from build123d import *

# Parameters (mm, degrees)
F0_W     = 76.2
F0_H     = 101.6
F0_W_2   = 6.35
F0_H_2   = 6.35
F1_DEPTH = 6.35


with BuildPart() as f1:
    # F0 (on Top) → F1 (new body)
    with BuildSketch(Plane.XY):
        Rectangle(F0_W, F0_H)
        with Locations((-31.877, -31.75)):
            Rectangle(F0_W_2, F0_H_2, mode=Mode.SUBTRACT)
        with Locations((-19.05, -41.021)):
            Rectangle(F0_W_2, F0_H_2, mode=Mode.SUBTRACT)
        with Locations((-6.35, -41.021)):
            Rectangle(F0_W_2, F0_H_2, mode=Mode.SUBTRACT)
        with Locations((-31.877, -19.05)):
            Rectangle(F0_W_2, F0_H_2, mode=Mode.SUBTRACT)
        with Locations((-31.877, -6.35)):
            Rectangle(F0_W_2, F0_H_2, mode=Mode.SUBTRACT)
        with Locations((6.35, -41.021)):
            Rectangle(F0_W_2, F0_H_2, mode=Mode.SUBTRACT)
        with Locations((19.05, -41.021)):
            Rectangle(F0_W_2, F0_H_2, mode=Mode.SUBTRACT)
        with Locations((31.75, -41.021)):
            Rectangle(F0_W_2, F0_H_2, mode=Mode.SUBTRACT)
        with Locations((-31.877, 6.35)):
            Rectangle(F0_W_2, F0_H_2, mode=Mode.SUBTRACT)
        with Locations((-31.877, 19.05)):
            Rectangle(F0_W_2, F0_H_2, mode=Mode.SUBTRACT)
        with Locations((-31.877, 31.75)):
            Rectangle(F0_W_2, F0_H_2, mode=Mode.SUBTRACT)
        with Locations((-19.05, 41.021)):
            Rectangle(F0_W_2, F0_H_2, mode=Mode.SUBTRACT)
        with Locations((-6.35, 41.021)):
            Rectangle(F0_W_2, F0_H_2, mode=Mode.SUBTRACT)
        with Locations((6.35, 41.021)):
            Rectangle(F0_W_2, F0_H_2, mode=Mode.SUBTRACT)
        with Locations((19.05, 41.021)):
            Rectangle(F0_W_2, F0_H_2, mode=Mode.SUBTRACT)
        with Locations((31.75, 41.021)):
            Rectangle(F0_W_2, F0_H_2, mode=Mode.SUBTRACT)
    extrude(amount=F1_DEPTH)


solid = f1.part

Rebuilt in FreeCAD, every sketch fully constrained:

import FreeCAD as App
import Part
import Sketcher

V = App.Vector
Q = App.Units.Quantity

doc = App.newDocument("Part")
params = doc.addObject("Spreadsheet::Sheet", "Params")
for row, (alias, value) in enumerate([
    ("sketch1_width", "3 in"),
    ("sketch1_height", "4 in"),
    ("sketch1_width2", "0.25 in"),
    ("pad1_length", "0.25 in"),
], start=1):
    params.set(f"A{row}", alias)
    params.set(f"B{row}", "=" + value)
    params.setAlias(f"B{row}", alias)

body = doc.addObject("PartDesign::Body", "Body")

# Sketch on XY plane
sketch1 = body.newObject("Sketcher::SketchObject", "Sketch")
sketch1.AttachmentSupport = (doc.getObject("XY_Plane"), [""])
sketch1.MapMode = "FlatFace"
sketch1.addGeometry([
    Part.LineSegment(V(-38.1, 50.8, 0), V(-38.1, -50.8, 0)),  # 0
    Part.LineSegment(V(-38.1, -50.8, 0), V(38.1, -50.8, 0)),  # 1
    Part.LineSegment(V(38.1, -50.8, 0), V(38.1, 50.8, 0)),  # 2
    Part.LineSegment(V(38.1, 50.8, 0), V(-38.1, 50.8, 0)),  # 3
    Part.LineSegment(V(-15.875, -44.196, 0), V(-22.225, -44.196, 0)),  # 4
    Part.LineSegment(V(-22.225, -44.196, 0), V(-22.225, -37.846, 0)),  # 5
    Part.LineSegment(V(-22.225, -37.846, 0), V(-15.875, -37.846, 0)),  # 6
    Part.LineSegment(V(-15.875, -37.846, 0), V(-15.875, -44.196, 0)),  # 7
    Part.LineSegment(V(-28.702, -34.925, 0), V(-35.052, -34.925, 0)),  # 8
    Part.LineSegment(V(-35.052, -34.925, 0), V(-35.052, -28.575, 0)),  # 9
    Part.LineSegment(V(-35.052, -28.575, 0), V(-28.702, -28.575, 0)),  # 10
    Part.LineSegment(V(-28.702, -28.575, 0), V(-28.702, -34.925, 0)),  # 11
    Part.LineSegment(V(-3.175, -44.196, 0), V(-9.525, -44.196, 0)),  # 12
    Part.LineSegment(V(-9.525, -44.196, 0), V(-9.525, -37.846, 0)),  # 13
    Part.LineSegment(V(-9.525, -37.846, 0), V(-3.175, -37.846, 0)),  # 14
    Part.LineSegment(V(-3.175, -37.846, 0), V(-3.175, -44.196, 0)),  # 15
    Part.LineSegment(V(-28.702, -22.225, 0), V(-35.052, -22.225, 0)),  # 16
    Part.LineSegment(V(-35.052, -22.225, 0), V(-35.052, -15.875, 0)),  # 17
    Part.LineSegment(V(-35.052, -15.875, 0), V(-28.702, -15.875, 0)),  # 18
    Part.LineSegment(V(-28.702, -15.875, 0), V(-28.702, -22.225, 0)),  # 19
    Part.LineSegment(V(-28.702, -9.525, 0), V(-35.052, -9.525, 0)),  # 20
    Part.LineSegment(V(-35.052, -9.525, 0), V(-35.052, -3.175, 0)),  # 21
    Part.LineSegment(V(-35.052, -3.175, 0), V(-28.702, -3.175, 0)),  # 22
    Part.LineSegment(V(-28.702, -3.175, 0), V(-28.702, -9.525, 0)),  # 23
    Part.LineSegment(V(9.525, -44.196, 0), V(3.175, -44.196, 0)),  # 24
    Part.LineSegment(V(3.175, -44.196, 0), V(3.175, -37.846, 0)),  # 25
    Part.LineSegment(V(3.175, -37.846, 0), V(9.525, -37.846, 0)),  # 26
    Part.LineSegment(V(9.525, -37.846, 0), V(9.525, -44.196, 0)),  # 27
    Part.LineSegment(V(22.225, -44.196, 0), V(15.875, -44.196, 0)),  # 28
    Part.LineSegment(V(15.875, -44.196, 0), V(15.875, -37.846, 0)),  # 29
    Part.LineSegment(V(15.875, -37.846, 0), V(22.225, -37.846, 0)),  # 30
    Part.LineSegment(V(22.225, -37.846, 0), V(22.225, -44.196, 0)),  # 31
    Part.LineSegment(V(34.925, -44.196, 0), V(28.575, -44.196, 0)),  # 32
    Part.LineSegment(V(28.575, -44.196, 0), V(28.575, -37.846, 0)),  # 33
    Part.LineSegment(V(28.575, -37.846, 0), V(34.925, -37.846, 0)),  # 34
    Part.LineSegment(V(34.925, -37.846, 0), V(34.925, -44.196, 0)),  # 35
    Part.LineSegment(V(-28.702, 3.175, 0), V(-35.052, 3.175, 0)),  # 36
    Part.LineSegment(V(-35.052, 3.175, 0), V(-35.052, 9.525, 0)),  # 37
    Part.LineSegment(V(-35.052, 9.525, 0), V(-28.702, 9.525, 0)),  # 38
    Part.LineSegment(V(-28.702, 9.525, 0), V(-28.702, 3.175, 0)),  # 39
    Part.LineSegment(V(-28.702, 15.875, 0), V(-35.052, 15.875, 0)),  # 40
    Part.LineSegment(V(-35.052, 15.875, 0), V(-35.052, 22.225, 0)),  # 41
    Part.LineSegment(V(-35.052, 22.225, 0), V(-28.702, 22.225, 0)),  # 42
    Part.LineSegment(V(-28.702, 22.225, 0), V(-28.702, 15.875, 0)),  # 43
    Part.LineSegment(V(-28.702, 28.575, 0), V(-35.052, 28.575, 0)),  # 44
    Part.LineSegment(V(-35.052, 28.575, 0), V(-35.052, 34.925, 0)),  # 45
    Part.LineSegment(V(-35.052, 34.925, 0), V(-28.702, 34.925, 0)),  # 46
    Part.LineSegment(V(-28.702, 34.925, 0), V(-28.702, 28.575, 0)),  # 47
    Part.LineSegment(V(-15.875, 37.846, 0), V(-22.225, 37.846, 0)),  # 48
    Part.LineSegment(V(-22.225, 37.846, 0), V(-22.225, 44.196, 0)),  # 49
    Part.LineSegment(V(-22.225, 44.196, 0), V(-15.875, 44.196, 0)),  # 50
    Part.LineSegment(V(-15.875, 44.196, 0), V(-15.875, 37.846, 0)),  # 51
    Part.LineSegment(V(-3.175, 37.846, 0), V(-9.525, 37.846, 0)),  # 52
    Part.LineSegment(V(-9.525, 37.846, 0), V(-9.525, 44.196, 0)),  # 53
    Part.LineSegment(V(-9.525, 44.196, 0), V(-3.175, 44.196, 0)),  # 54
    Part.LineSegment(V(-3.175, 44.196, 0), V(-3.175, 37.846, 0)),  # 55
    Part.LineSegment(V(9.525, 37.846, 0), V(3.175, 37.846, 0)),  # 56
    Part.LineSegment(V(3.175, 37.846, 0), V(3.175, 44.196, 0)),  # 57
    Part.LineSegment(V(3.175, 44.196, 0), V(9.525, 44.196, 0)),  # 58
    Part.LineSegment(V(9.525, 44.196, 0), V(9.525, 37.846, 0)),  # 59
    Part.LineSegment(V(22.225, 37.846, 0), V(15.875, 37.846, 0)),  # 60
    Part.LineSegment(V(15.875, 37.846, 0), V(15.875, 44.196, 0)),  # 61
    Part.LineSegment(V(15.875, 44.196, 0), V(22.225, 44.196, 0)),  # 62
    Part.LineSegment(V(22.225, 44.196, 0), V(22.225, 37.846, 0)),  # 63
    Part.LineSegment(V(34.925, 37.846, 0), V(28.575, 37.846, 0)),  # 64
    Part.LineSegment(V(28.575, 37.846, 0), V(28.575, 44.196, 0)),  # 65
    Part.LineSegment(V(28.575, 44.196, 0), V(34.925, 44.196, 0)),  # 66
    Part.LineSegment(V(34.925, 44.196, 0), V(34.925, 37.846, 0)),  # 67
], False)
sketch1.addConstraint([
    Sketcher.Constraint("Coincident", 0, 2, 1, 1),
    Sketcher.Constraint("Coincident", 1, 2, 2, 1),
    Sketcher.Constraint("Coincident", 2, 2, 3, 1),
    Sketcher.Constraint("Coincident", 3, 2, 0, 1),
    Sketcher.Constraint("Coincident", 4, 2, 5, 1),
    Sketcher.Constraint("Coincident", 5, 2, 6, 1),
    Sketcher.Constraint("Coincident", 6, 2, 7, 1),
    Sketcher.Constraint("Coincident", 7, 2, 4, 1),
    Sketcher.Constraint("Coincident", 8, 2, 9, 1),
    Sketcher.Constraint("Coincident", 9, 2, 10, 1),
    Sketcher.Constraint("Coincident", 10, 2, 11, 1),
    Sketcher.Constraint("Coincident", 11, 2, 8, 1),
    Sketcher.Constraint("Coincident", 12, 2, 13, 1),
    Sketcher.Constraint("Coincident", 13, 2, 14, 1),
    Sketcher.Constraint("Coincident", 14, 2, 15, 1),
    Sketcher.Constraint("Coincident", 15, 2, 12, 1),
    Sketcher.Constraint("Coincident", 16, 2, 17, 1),
    Sketcher.Constraint("Coincident", 17, 2, 18, 1),
    Sketcher.Constraint("Coincident", 18, 2, 19, 1),
    Sketcher.Constraint("Coincident", 19, 2, 16, 1),
    Sketcher.Constraint("Coincident", 20, 2, 21, 1),
    Sketcher.Constraint("Coincident", 21, 2, 22, 1),
    Sketcher.Constraint("Coincident", 22, 2, 23, 1),
    Sketcher.Constraint("Coincident", 23, 2, 20, 1),
    Sketcher.Constraint("Coincident", 24, 2, 25, 1),
    Sketcher.Constraint("Coincident", 25, 2, 26, 1),
    Sketcher.Constraint("Coincident", 26, 2, 27, 1),
    Sketcher.Constraint("Coincident", 27, 2, 24, 1),
    Sketcher.Constraint("Coincident", 28, 2, 29, 1),
    Sketcher.Constraint("Coincident", 29, 2, 30, 1),
    Sketcher.Constraint("Coincident", 30, 2, 31, 1),
    Sketcher.Constraint("Coincident", 31, 2, 28, 1),
    Sketcher.Constraint("Coincident", 32, 2, 33, 1),
    Sketcher.Constraint("Coincident", 33, 2, 34, 1),
    Sketcher.Constraint("Coincident", 34, 2, 35, 1),
    Sketcher.Constraint("Coincident", 35, 2, 32, 1),
    Sketcher.Constraint("Coincident", 36, 2, 37, 1),
    Sketcher.Constraint("Coincident", 37, 2, 38, 1),
    Sketcher.Constraint("Coincident", 38, 2, 39, 1),
    Sketcher.Constraint("Coincident", 39, 2, 36, 1),
    Sketcher.Constraint("Coincident", 40, 2, 41, 1),
    Sketcher.Constraint("Coincident", 41, 2, 42, 1),
    Sketcher.Constraint("Coincident", 42, 2, 43, 1),
    Sketcher.Constraint("Coincident", 43, 2, 40, 1),
    Sketcher.Constraint("Coincident", 44, 2, 45, 1),
    Sketcher.Constraint("Coincident", 45, 2, 46, 1),
    Sketcher.Constraint("Coincident", 46, 2, 47, 1),
    Sketcher.Constraint("Coincident", 47, 2, 44, 1),
    Sketcher.Constraint("Coincident", 48, 2, 49, 1),
    Sketcher.Constraint("Coincident", 49, 2, 50, 1),
    Sketcher.Constraint("Coincident", 50, 2, 51, 1),
    Sketcher.Constraint("Coincident", 51, 2, 48, 1),
    Sketcher.Constraint("Coincident", 52, 2, 53, 1),
    Sketcher.Constraint("Coincident", 53, 2, 54, 1),
    Sketcher.Constraint("Coincident", 54, 2, 55, 1),
    Sketcher.Constraint("Coincident", 55, 2, 52, 1),
    Sketcher.Constraint("Coincident", 56, 2, 57, 1),
    Sketcher.Constraint("Coincident", 57, 2, 58, 1),
    Sketcher.Constraint("Coincident", 58, 2, 59, 1),
    Sketcher.Constraint("Coincident", 59, 2, 56, 1),
    Sketcher.Constraint("Coincident", 60, 2, 61, 1),
    Sketcher.Constraint("Coincident", 61, 2, 62, 1),
    Sketcher.Constraint("Coincident", 62, 2, 63, 1),
    Sketcher.Constraint("Coincident", 63, 2, 60, 1),
    Sketcher.Constraint("Coincident", 64, 2, 65, 1),
    Sketcher.Constraint("Coincident", 65, 2, 66, 1),
    Sketcher.Constraint("Coincident", 66, 2, 67, 1),
    Sketcher.Constraint("Coincident", 67, 2, 64, 1),
    Sketcher.Constraint("Vertical", 0),
    Sketcher.Constraint("Horizontal", 1),
    Sketcher.Constraint("Vertical", 2),
    Sketcher.Constraint("Horizontal", 3),
    Sketcher.Constraint("Horizontal", 4),
    Sketcher.Constraint("Vertical", 5),
    Sketcher.Constraint("Horizontal", 6),
    Sketcher.Constraint("Vertical", 7),
    Sketcher.Constraint("Horizontal", 8),
    Sketcher.Constraint("Vertical", 9),
    Sketcher.Constraint("Horizontal", 10),
    Sketcher.Constraint("Vertical", 11),
    Sketcher.Constraint("Horizontal", 12),
    Sketcher.Constraint("Vertical", 13),
    Sketcher.Constraint("Horizontal", 14),
    Sketcher.Constraint("Vertical", 15),
    Sketcher.Constraint("Horizontal", 16),
    Sketcher.Constraint("Vertical", 17),
    Sketcher.Constraint("Horizontal", 18),
    Sketcher.Constraint("Vertical", 19),
    Sketcher.Constraint("Horizontal", 20),
    Sketcher.Constraint("Vertical", 21),
    Sketcher.Constraint("Horizontal", 22),
    Sketcher.Constraint("Vertical", 23),
    Sketcher.Constraint("Horizontal", 24),
    Sketcher.Constraint("Vertical", 25),
    Sketcher.Constraint("Horizontal", 26),
    Sketcher.Constraint("Vertical", 27),
    Sketcher.Constraint("Horizontal", 28),
    Sketcher.Constraint("Vertical", 29),
    Sketcher.Constraint("Horizontal", 30),
    Sketcher.Constraint("Vertical", 31),
    Sketcher.Constraint("Horizontal", 32),
    Sketcher.Constraint("Vertical", 33),
    Sketcher.Constraint("Horizontal", 34),
    Sketcher.Constraint("Vertical", 35),
    Sketcher.Constraint("Horizontal", 36),
    Sketcher.Constraint("Vertical", 37),
    Sketcher.Constraint("Horizontal", 38),
    Sketcher.Constraint("Vertical", 39),
    Sketcher.Constraint("Horizontal", 40),
    Sketcher.Constraint("Vertical", 41),
    Sketcher.Constraint("Horizontal", 42),
    Sketcher.Constraint("Vertical", 43),
    Sketcher.Constraint("Horizontal", 44),
    Sketcher.Constraint("Vertical", 45),
    Sketcher.Constraint("Horizontal", 46),
    Sketcher.Constraint("Vertical", 47),
    Sketcher.Constraint("Horizontal", 48),
    Sketcher.Constraint("Vertical", 49),
    Sketcher.Constraint("Horizontal", 50),
    Sketcher.Constraint("Vertical", 51),
    Sketcher.Constraint("Horizontal", 52),
    Sketcher.Constraint("Vertical", 53),
    Sketcher.Constraint("Horizontal", 54),
    Sketcher.Constraint("Vertical", 55),
    Sketcher.Constraint("Horizontal", 56),
    Sketcher.Constraint("Vertical", 57),
    Sketcher.Constraint("Horizontal", 58),
    Sketcher.Constraint("Vertical", 59),
    Sketcher.Constraint("Horizontal", 60),
    Sketcher.Constraint("Vertical", 61),
    Sketcher.Constraint("Horizontal", 62),
    Sketcher.Constraint("Vertical", 63),
    Sketcher.Constraint("Horizontal", 64),
    Sketcher.Constraint("Vertical", 65),
    Sketcher.Constraint("Horizontal", 66),
    Sketcher.Constraint("Vertical", 67),
    Sketcher.Constraint("Symmetric", 0, 2, 2, 2, -1, 1),
    Sketcher.Constraint("Symmetric", 30, 2, 48, 2, -1, 1),
    Sketcher.Constraint("Symmetric", 28, 2, 50, 2, -1, 1),
    Sketcher.Constraint("Symmetric", 26, 2, 52, 2, -1, 1),
    Sketcher.Constraint("Symmetric", 24, 2, 54, 2, -1, 1),
    Sketcher.Constraint("Symmetric", 14, 2, 56, 2, -1, 1),
    Sketcher.Constraint("Symmetric", 12, 2, 58, 2, -1, 1),
    Sketcher.Constraint("Symmetric", 6, 2, 60, 2, -1, 1),
    Sketcher.Constraint("Symmetric", 4, 2, 62, 2, -1, 1),
    Sketcher.Constraint("Symmetric", 15, 2, 24, 2, -2),
    Sketcher.Constraint("Symmetric", 13, 2, 26, 2, -2),
    Sketcher.Constraint("Symmetric", 7, 2, 28, 2, -2),
    Sketcher.Constraint("Symmetric", 5, 2, 30, 2, -2),
    Sketcher.Constraint("Symmetric", 21, 2, 36, 2, -1),
    Sketcher.Constraint("Symmetric", 23, 2, 38, 2, -1),
    Sketcher.Constraint("Symmetric", 17, 2, 40, 2, -1),
    Sketcher.Constraint("Symmetric", 19, 2, 42, 2, -1),
    Sketcher.Constraint("Symmetric", 9, 2, 44, 2, -1),
    Sketcher.Constraint("Symmetric", 11, 2, 46, 2, -1),
    Sketcher.Constraint("Symmetric", 33, 2, 64, 2, -1),
    Sketcher.Constraint("Symmetric", 35, 2, 66, 2, -1),
    Sketcher.Constraint("Horizontal", 7, 2, 12, 2),
    Sketcher.Constraint("Horizontal", 6, 2, 13, 2),
    Sketcher.Constraint("Horizontal", 31, 2, 32, 2),
    Sketcher.Constraint("Horizontal", 30, 2, 33, 2),
    Sketcher.Constraint("Vertical", 9, 2, 16, 2),
    Sketcher.Constraint("Vertical", 11, 2, 18, 2),
    Sketcher.Constraint("Vertical", 17, 2, 20, 2),
    Sketcher.Constraint("Vertical", 19, 2, 22, 2),
    Sketcher.Constraint("Equal", 6, 8),
    Sketcher.Constraint("Equal", 10, 12),
    Sketcher.Constraint("Equal", 30, 32),
    Sketcher.Constraint("Equal", 66, 5),
    Sketcher.Constraint("Equal", 7, 9),
    Sketcher.Constraint("Equal", 15, 17),
    Sketcher.Constraint("Equal", 19, 21),
    Sketcher.Constraint("DistanceX", 1, 1, 1, 2, Q("3 in")),
    Sketcher.Constraint("DistanceY", 0, 2, 0, 1, Q("4 in")),
    Sketcher.Constraint("DistanceX", 4, 2, 4, 1, Q("0.25 in")),
    Sketcher.Constraint("DistanceY", 4, 2, -1, 1, Q("1.74 in")),
    Sketcher.Constraint("DistanceX", 8, 2, -1, 1, Q("1.38 in")),
    Sketcher.Constraint("DistanceX", 4, 2, -1, 1, Q("0.875 in")),
    Sketcher.Constraint("DistanceY", 8, 2, -1, 1, Q("1.375 in")),
    Sketcher.Constraint("DistanceX", 12, 2, -1, 1, Q("0.375 in")),
    Sketcher.Constraint("DistanceY", 16, 2, -1, 1, Q("0.875 in")),
    Sketcher.Constraint("DistanceY", 20, 2, -1, 1, Q("0.375 in")),
    Sketcher.Constraint("DistanceX", -1, 1, 32, 2, Q("1.125 in")),
])
sketch1.setExpression("Constraints[172]", "Params.sketch1_width")
sketch1.setExpression("Constraints[173]", "Params.sketch1_height")
sketch1.setExpression("Constraints[174]", "Params.sketch1_width2")
pad1 = body.newObject("PartDesign::Pad", "Pad")
pad1.Profile = sketch1
pad1.setExpression("Length", "Params.pad1_length")

doc.recompute()
